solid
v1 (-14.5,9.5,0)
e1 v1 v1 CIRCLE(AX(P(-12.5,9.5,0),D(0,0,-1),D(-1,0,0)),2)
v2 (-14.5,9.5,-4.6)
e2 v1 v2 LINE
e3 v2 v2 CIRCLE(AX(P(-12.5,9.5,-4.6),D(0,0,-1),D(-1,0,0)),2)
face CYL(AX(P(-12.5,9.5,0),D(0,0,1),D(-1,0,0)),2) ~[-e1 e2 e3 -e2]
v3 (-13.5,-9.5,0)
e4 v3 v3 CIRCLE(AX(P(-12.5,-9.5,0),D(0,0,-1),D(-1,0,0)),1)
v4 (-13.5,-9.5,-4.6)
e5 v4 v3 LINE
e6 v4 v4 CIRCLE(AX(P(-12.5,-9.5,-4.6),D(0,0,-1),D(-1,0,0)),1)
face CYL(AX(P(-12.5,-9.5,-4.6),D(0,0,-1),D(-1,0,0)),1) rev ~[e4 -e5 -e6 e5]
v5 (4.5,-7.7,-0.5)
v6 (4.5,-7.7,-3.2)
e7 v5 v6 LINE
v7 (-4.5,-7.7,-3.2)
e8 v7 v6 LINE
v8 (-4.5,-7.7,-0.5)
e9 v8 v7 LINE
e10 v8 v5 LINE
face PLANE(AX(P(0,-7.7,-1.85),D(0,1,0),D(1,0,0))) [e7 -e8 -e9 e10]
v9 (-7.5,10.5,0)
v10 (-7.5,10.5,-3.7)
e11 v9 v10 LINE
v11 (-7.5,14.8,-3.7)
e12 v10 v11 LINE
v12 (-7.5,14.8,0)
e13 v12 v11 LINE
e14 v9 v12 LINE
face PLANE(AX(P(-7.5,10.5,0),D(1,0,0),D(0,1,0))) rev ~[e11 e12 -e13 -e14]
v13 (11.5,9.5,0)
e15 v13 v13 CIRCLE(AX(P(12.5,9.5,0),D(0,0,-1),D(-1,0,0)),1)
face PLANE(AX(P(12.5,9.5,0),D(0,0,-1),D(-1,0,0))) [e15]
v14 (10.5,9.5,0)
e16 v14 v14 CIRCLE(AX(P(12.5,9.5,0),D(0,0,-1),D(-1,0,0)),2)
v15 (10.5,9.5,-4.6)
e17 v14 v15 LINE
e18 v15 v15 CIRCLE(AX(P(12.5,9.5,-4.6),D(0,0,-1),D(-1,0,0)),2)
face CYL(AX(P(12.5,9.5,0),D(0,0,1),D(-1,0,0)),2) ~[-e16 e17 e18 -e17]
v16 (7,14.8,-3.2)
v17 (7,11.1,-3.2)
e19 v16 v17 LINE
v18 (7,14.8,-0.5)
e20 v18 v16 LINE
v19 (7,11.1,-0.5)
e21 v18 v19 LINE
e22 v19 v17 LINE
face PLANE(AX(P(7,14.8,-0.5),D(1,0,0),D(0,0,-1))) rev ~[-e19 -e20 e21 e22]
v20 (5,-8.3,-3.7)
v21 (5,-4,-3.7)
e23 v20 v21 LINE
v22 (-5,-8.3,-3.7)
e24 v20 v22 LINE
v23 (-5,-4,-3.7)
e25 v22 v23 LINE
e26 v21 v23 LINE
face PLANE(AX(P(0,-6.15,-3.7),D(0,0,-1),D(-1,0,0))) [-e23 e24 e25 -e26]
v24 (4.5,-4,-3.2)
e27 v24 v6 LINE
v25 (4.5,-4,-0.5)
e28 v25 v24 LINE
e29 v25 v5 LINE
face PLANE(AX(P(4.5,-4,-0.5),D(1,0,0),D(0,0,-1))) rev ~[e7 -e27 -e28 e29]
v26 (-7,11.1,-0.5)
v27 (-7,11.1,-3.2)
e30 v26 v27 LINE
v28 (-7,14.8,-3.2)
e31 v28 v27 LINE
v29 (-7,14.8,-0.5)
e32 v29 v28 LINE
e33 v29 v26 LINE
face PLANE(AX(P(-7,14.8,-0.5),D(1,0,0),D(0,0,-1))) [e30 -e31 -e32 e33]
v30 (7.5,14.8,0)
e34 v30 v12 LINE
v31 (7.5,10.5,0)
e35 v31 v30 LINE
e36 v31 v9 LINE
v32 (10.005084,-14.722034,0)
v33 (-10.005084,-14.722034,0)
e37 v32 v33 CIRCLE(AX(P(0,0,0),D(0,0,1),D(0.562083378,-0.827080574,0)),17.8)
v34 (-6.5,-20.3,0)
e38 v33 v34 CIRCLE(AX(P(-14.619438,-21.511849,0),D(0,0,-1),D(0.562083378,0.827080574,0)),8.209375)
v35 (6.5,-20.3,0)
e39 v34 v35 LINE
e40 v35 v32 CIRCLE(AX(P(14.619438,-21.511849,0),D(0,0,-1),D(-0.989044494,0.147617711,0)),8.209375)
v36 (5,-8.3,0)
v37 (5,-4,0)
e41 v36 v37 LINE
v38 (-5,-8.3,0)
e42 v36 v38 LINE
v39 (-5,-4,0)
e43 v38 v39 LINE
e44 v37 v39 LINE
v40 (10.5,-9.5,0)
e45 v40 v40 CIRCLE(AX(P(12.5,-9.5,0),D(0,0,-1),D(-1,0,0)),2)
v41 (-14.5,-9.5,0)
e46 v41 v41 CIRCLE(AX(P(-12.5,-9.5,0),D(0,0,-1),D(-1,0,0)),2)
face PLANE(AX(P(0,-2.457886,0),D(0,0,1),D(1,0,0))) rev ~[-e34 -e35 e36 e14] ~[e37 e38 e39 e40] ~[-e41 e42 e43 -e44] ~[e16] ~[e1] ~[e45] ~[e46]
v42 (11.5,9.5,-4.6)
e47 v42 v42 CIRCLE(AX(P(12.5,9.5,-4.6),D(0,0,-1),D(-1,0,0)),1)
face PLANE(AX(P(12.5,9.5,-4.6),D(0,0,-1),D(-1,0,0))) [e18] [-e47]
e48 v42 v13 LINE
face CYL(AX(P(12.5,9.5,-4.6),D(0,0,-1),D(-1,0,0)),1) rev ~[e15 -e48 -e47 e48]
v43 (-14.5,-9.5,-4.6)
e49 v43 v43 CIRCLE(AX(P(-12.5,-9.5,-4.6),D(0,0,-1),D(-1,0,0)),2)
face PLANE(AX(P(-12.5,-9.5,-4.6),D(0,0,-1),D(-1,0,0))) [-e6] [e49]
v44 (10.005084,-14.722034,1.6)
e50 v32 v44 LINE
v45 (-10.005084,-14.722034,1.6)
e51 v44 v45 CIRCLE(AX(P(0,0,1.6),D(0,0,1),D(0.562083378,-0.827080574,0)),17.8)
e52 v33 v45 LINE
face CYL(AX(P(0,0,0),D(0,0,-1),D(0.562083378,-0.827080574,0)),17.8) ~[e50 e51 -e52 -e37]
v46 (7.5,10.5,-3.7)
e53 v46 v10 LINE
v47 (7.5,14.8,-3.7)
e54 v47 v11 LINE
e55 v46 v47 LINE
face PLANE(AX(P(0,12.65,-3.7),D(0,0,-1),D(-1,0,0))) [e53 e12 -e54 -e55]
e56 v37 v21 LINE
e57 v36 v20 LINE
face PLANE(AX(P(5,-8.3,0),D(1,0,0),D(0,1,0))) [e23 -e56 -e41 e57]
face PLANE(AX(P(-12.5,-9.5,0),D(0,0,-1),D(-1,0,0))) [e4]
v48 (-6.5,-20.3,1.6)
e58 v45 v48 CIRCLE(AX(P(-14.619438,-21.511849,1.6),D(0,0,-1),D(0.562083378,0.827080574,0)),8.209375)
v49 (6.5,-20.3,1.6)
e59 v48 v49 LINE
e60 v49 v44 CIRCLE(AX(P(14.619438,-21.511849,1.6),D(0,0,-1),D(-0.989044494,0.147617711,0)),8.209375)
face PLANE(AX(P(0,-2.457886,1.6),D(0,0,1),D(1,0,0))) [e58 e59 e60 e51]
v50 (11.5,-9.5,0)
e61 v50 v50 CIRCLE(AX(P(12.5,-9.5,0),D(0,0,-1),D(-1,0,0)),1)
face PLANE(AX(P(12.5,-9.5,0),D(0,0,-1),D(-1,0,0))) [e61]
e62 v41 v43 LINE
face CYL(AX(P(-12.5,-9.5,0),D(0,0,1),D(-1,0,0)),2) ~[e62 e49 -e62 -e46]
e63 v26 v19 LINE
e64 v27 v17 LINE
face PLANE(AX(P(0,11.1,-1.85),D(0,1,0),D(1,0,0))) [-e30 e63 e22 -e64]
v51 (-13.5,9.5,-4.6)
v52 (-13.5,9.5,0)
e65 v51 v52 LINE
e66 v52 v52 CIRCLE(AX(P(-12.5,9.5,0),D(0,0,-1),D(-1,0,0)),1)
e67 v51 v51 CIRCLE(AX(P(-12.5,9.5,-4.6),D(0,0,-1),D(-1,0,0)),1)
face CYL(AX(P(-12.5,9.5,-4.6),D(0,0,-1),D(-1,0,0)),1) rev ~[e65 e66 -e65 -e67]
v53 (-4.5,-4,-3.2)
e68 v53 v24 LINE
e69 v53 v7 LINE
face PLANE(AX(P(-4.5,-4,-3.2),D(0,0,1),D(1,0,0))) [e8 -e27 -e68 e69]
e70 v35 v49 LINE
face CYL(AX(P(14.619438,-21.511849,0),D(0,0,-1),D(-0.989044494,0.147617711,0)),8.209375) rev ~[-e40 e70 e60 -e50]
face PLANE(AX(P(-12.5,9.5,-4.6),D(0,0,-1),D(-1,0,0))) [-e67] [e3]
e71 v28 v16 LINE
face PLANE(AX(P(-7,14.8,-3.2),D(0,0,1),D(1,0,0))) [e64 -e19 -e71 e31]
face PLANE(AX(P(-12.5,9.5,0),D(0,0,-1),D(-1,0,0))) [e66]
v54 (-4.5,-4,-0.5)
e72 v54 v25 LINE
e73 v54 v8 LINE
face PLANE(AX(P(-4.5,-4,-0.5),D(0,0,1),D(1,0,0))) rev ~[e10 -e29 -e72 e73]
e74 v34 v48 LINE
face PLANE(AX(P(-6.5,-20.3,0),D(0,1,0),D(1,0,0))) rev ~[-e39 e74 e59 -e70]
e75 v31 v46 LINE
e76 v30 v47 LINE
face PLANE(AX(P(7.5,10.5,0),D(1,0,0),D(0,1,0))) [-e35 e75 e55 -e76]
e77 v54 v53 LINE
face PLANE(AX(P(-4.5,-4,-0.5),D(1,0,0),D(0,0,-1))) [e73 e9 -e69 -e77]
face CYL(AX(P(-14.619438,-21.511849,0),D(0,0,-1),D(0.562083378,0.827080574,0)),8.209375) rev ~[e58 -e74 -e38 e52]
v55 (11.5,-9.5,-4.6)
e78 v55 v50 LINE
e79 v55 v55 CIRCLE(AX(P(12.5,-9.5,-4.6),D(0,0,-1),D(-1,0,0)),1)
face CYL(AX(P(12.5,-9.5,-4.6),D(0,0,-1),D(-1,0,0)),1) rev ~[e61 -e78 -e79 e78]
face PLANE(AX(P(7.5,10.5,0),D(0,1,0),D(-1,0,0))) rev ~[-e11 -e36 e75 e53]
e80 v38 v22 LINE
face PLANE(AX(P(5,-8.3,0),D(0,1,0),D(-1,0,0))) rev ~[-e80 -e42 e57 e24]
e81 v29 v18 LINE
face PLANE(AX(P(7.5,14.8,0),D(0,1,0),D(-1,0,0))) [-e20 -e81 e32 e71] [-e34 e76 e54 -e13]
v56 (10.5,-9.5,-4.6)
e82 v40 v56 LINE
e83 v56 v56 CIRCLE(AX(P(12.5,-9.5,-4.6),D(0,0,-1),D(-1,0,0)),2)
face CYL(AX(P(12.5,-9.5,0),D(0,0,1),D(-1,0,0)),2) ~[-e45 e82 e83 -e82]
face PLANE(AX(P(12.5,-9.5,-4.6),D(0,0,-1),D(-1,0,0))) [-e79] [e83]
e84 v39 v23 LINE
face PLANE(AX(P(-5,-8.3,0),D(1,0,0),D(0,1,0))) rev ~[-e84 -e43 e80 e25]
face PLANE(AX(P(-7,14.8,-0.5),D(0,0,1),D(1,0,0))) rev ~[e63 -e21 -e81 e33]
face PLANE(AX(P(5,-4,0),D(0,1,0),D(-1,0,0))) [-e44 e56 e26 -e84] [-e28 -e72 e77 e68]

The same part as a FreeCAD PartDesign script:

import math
import FreeCAD as App
import Part
import Sketcher
from FreeCAD import Vector
Q = App.Units.Quantity

doc = App.newDocument("Part")
body = doc.addObject("PartDesign::Body", "Body")

sketch1 = doc.addObject("Sketcher::SketchObject", "Sketch")
body.addObject(sketch1)
sketch1.AttachmentSupport = (doc.XY_Plane, [""])
sketch1.MapMode = "FlatFace"
sketch1.addGeometry(Part.LineSegment(Vector(-6, -20, 0), Vector(6, -20, 0)), False)
sketch1.addGeometry(Part.ArcOfCircle(Part.Circle(Vector(15, -22, 0), Vector(0, 0, 1), 8), math.radians(124), math.radians(172)), False)
sketch1.addGeometry(Part.ArcOfCircle(Part.Circle(Vector(0, 0, 0), Vector(0, 0, 1), 18), math.radians(-56), math.radians(236)), False)
sketch1.addGeometry(Part.ArcOfCircle(Part.Circle(Vector(-15, -22, 0), Vector(0, 0, 1), 8), math.radians(8), math.radians(56)), False)
sketch1.addConstraint(Sketcher.Constraint("Coincident", 0, 2, 1, 2))
sketch1.addConstraint(Sketcher.Constraint("Tangent", 1, 1, 2, 1))
sketch1.addConstraint(Sketcher.Constraint("Tangent", 2, 2, 3, 2))
sketch1.addConstraint(Sketcher.Constraint("Coincident", 3, 1, 0, 1))
sketch1.addConstraint(Sketcher.Constraint("Horizontal", 0))
sketch1.addConstraint(Sketcher.Constraint("Coincident", 2, 3, -1, 1))
sketch1.addConstraint(Sketcher.Constraint("Equal", 1, 3))
sketch1.addConstraint(Sketcher.Constraint("Horizontal", 1, 3, 3, 3))
sketch1.addConstraint(Sketcher.Constraint("Radius", 2, Q("17.8 mm")))
sketch1.addConstraint(Sketcher.Constraint("DistanceX", 0, 1, 0, 2, Q("13 mm")))
sketch1.addConstraint(Sketcher.Constraint("DistanceY", 0, 2, -1, 1, Q("20.3 mm")))
sketch1.addConstraint(Sketcher.Constraint("Radius", 1, Q("8.209375 mm")))
pad1 = doc.addObject("PartDesign::Pad", "Pad")
body.addObject(pad1)
pad1.Profile = sketch1
pad1.Length = 1.6

sketch2 = doc.addObject("Sketcher::SketchObject", "Sketch001")
body.addObject(sketch2)
sketch2.AttachmentSupport = (doc.XY_Plane, [""])
sketch2.MapMode = "FlatFace"
sketch2.addGeometry(Part.Circle(Vector(12.5, 9.5, 0), Vector(0, 0, 1), 2), False)
sketch2.addGeometry(Part.Circle(Vector(-12.5, 9.5, 0), Vector(0, 0, 1), 2), False)
sketch2.addGeometry(Part.Circle(Vector(-12.5, -9.5, 0), Vector(0, 0, 1), 2), False)
sketch2.addGeometry(Part.Circle(Vector(12.5, -9.5, 0), Vector(0, 0, 1), 2), False)
sketch2.addConstraint(Sketcher.Constraint("Equal", 0, 1))
sketch2.addConstraint(Sketcher.Constraint("Equal", 1, 2))
sketch2.addConstraint(Sketcher.Constraint("Equal", 2, 3))
sketch2.addConstraint(Sketcher.Constraint("Symmetric", 0, 3, 2, 3, -1, 1))
sketch2.addConstraint(Sketcher.Constraint("Symmetric", 1, 3, 3, 3, -1, 1))
sketch2.addConstraint(Sketcher.Constraint("Symmetric", 0, 3, 1, 3, -2))
sketch2.addConstraint(Sketcher.Constraint("Diameter", 0, Q("4 mm")))
sketch2.addConstraint(Sketcher.Constraint("DistanceX", 1, 3, 0, 3, Q("25 mm")))
sketch2.addConstraint(Sketcher.Constraint("DistanceY", 2, 3, 1, 3, Q("19 mm")))
pad2 = doc.addObject("PartDesign::Pad", "Pad001")
body.addObject(pad2)
pad2.Profile = sketch2
pad2.Length = 4.6
pad2.Reversed = True

sketch3 = doc.addObject("Sketcher::SketchObject", "Sketch002")
body.addObject(sketch3)
sketch3.AttachmentSupport = (doc.XY_Plane, [""])
sketch3.MapMode = "FlatFace"
sketch3.AttachmentOffset = App.Placement(Vector(0, 0, -4.6), App.Rotation())
sketch3.addGeometry(Part.Circle(Vector(12.5, 9.5, 0), Vector(0, 0, 1), 1), False)
sketch3.addGeometry(Part.Circle(Vector(-12.5, 9.5, 0), Vector(0, 0, 1), 1), False)
sketch3.addGeometry(Part.Circle(Vector(-12.5, -9.5, 0), Vector(0, 0, 1), 1), False)
sketch3.addGeometry(Part.Circle(Vector(12.5, -9.5, 0), Vector(0, 0, 1), 1), False)
sketch3.addConstraint(Sketcher.Constraint("Equal", 0, 1))
sketch3.addConstraint(Sketcher.Constraint("Equal", 1, 2))
sketch3.addConstraint(Sketcher.Constraint("Equal", 2, 3))
sketch3.addConstraint(Sketcher.Constraint("Symmetric", 0, 3, 2, 3, -1, 1))
sketch3.addConstraint(Sketcher.Constraint("Symmetric", 1, 3, 3, 3, -1, 1))
sketch3.addConstraint(Sketcher.Constraint("Symmetric", 0, 3, 1, 3, -2))
sketch3.addConstraint(Sketcher.Constraint("Diameter", 0, Q("2 mm")))
sketch3.addConstraint(Sketcher.Constraint("DistanceX", 1, 3, 0, 3, Q("25 mm")))
sketch3.addConstraint(Sketcher.Constraint("DistanceY", 2, 3, 1, 3, Q("19 mm")))
pocket1 = doc.addObject("PartDesign::Pocket", "Pocket")
body.addObject(pocket1)
pocket1.Profile = sketch3
pocket1.Length = 4.6
pocket1.Reversed = True

sketch4 = doc.addObject("Sketcher::SketchObject", "Sketch003")
body.addObject(sketch4)
sketch4.AttachmentSupport = (doc.XY_Plane, [""])
sketch4.MapMode = "FlatFace"
sketch4.addGeometry(Part.LineSegment(Vector(7.5, 14.8, 0), Vector(7.5, 10.5, 0)), False)
sketch4.addGeometry(Part.LineSegment(Vector(7.5, 10.5, 0), Vector(-7.5, 10.5, 0)), False)
sketch4.addGeometry(Part.LineSegment(Vector(-7.5, 10.5, 0), Vector(-7.5, 14.8, 0)), False)
sketch4.addGeometry(Part.LineSegment(Vector(-7.5, 14.8, 0), Vector(7.5, 14.8, 0)), False)
sketch4.addGeometry(Part.LineSegment(Vector(5, -4, 0), Vector(5, -8.3, 0)), False)
sketch4.addGeometry(Part.LineSegment(Vector(5, -8.3, 0), Vector(-5, -8.3, 0)), False)
sketch4.addGeometry(Part.LineSegment(Vector(-5, -8.3, 0), Vector(-5, -4, 0)), False)
sketch4.addGeometry(Part.LineSegment(Vector(-5, -4, 0), Vector(5, -4, 0)), False)
sketch4.addConstraint(Sketcher.Constraint("Coincident", 0, 2, 1, 1))
sketch4.addConstraint(Sketcher.Constraint("Coincident", 1, 2, 2, 1))
sketch4.addConstraint(Sketcher.Constraint("Coincident", 2, 2, 3, 1))
sketch4.addConstraint(Sketcher.Constraint("Coincident", 3, 2, 0, 1))
sketch4.addConstraint(Sketcher.Constraint("Coincident", 4, 2, 5, 1))
sketch4.addConstraint(Sketcher.Constraint("Coincident", 5, 2, 6, 1))
sketch4.addConstraint(Sketcher.Constraint("Coincident", 6, 2, 7, 1))
sketch4.addConstraint(Sketcher.Constraint("Coincident", 7, 2, 4, 1))
sketch4.addConstraint(Sketcher.Constraint("Vertical", 0))
sketch4.addConstraint(Sketcher.Constraint("Horizontal", 1))
sketch4.addConstraint(Sketcher.Constraint("Vertical", 2))
sketch4.addConstraint(Sketcher.Constraint("Horizontal", 3))
sketch4.addConstraint(Sketcher.Constraint("Vertical", 4))
sketch4.addConstraint(Sketcher.Constraint("Horizontal", 5))
sketch4.addConstraint(Sketcher.Constraint("Vertical", 6))
sketch4.addConstraint(Sketcher.Constraint("Horizontal", 7))
sketch4.addConstraint(Sketcher.Constraint("Equal", 2, 4))
sketch4.addConstraint(Sketcher.Constraint("DistanceX", 1, 2, 1, 1, Q("15 mm")))
sketch4.addConstraint(Sketcher.Constraint("DistanceX", 5, 2, 5, 1, Q("10 mm")))
sketch4.addConstraint(Sketcher.Constraint("DistanceY", 0, 2, 0, 1, Q("4.3 mm")))
sketch4.addConstraint(Sketcher.Constraint("DistanceX", -1, 1, 4, 2, Q("5 mm")))
sketch4.addConstraint(Sketcher.Constraint("DistanceY", 6, 2, -1, 1, Q("4 mm")))
sketch4.addConstraint(Sketcher.Constraint("DistanceX", -1, 1, 0, 2, Q("7.5 mm")))
sketch4.addConstraint(Sketcher.Constraint("DistanceY", -1, 1, 0, 2, Q("10.5 mm")))
pad3 = doc.addObject("PartDesign::Pad", "Pad002")
body.addObject(pad3)
pad3.Profile = sketch4
pad3.Length = 3.7
pad3.Reversed = True

sketch5 = doc.addObject("Sketcher::SketchObject", "Sketch004")
body.addObject(sketch5)
sketch5.AttachmentSupport = (doc.XZ_Plane, [""])
sketch5.MapMode = "FlatFace"
sketch5.AttachmentOffset = App.Placement(Vector(0, 0, -14.8), App.Rotation())
sketch5.addGeometry(Part.LineSegment(Vector(-7, -3.2, 0), Vector(-7, -0.5, 0)), False)
sketch5.addGeometry(Part.LineSegment(Vector(-7, -0.5, 0), Vector(7, -0.5, 0)), False)
sketch5.addGeometry(Part.LineSegment(Vector(7, -0.5, 0), Vector(7, -3.2, 0)), False)
sketch5.addGeometry(Part.LineSegment(Vector(7, -3.2, 0), Vector(-7, -3.2, 0)), False)
sketch5.addConstraint(Sketcher.Constraint("Coincident", 0, 2, 1, 1))
sketch5.addConstraint(Sketcher.Constraint("Coincident", 1, 2, 2, 1))
sketch5.addConstraint(Sketcher.Constraint("Coincident", 2, 2, 3, 1))
sketch5.addConstraint(Sketcher.Constraint("Coincident", 3, 2, 0, 1))
sketch5.addConstraint(Sketcher.Constraint("Vertical", 0))
sketch5.addConstraint(Sketcher.Constraint("Horizontal", 1))
sketch5.addConstraint(Sketcher.Constraint("Vertical", 2))
sketch5.addConstraint(Sketcher.Constraint("Horizontal", 3))
sketch5.addConstraint(Sketcher.Constraint("DistanceX", 1, 1, 1, 2, Q("14 mm")))
sketch5.addConstraint(Sketcher.Constraint("DistanceY", 0, 1, 0, 2, Q("2.7 mm")))
sketch5.addConstraint(Sketcher.Constraint("DistanceX", 0, 2, -1, 1, Q("7 mm")))
sketch5.addConstraint(Sketcher.Constraint("DistanceY", 0, 2, -1, 1, Q("0.5 mm")))
pocket2 = doc.addObject("PartDesign::Pocket", "Pocket001")
body.addObject(pocket2)
pocket2.Profile = sketch5
pocket2.Length = 3.7
pocket2.Reversed = True

sketch6 = doc.addObject("Sketcher::SketchObject", "Sketch005")
body.addObject(sketch6)
sketch6.AttachmentSupport = (doc.XZ_Plane, [""])
sketch6.MapMode = "FlatFace"
sketch6.AttachmentOffset = App.Placement(Vector(0, 0, 4), App.Rotation())
sketch6.addGeometry(Part.LineSegment(Vector(-4.5, -3.2, 0), Vector(-4.5, -0.5, 0)), False)
sketch6.addGeometry(Part.LineSegment(Vector(-4.5, -0.5, 0), Vector(4.5, -0.5, 0)), False)
sketch6.addGeometry(Part.LineSegment(Vector(4.5, -0.5, 0), Vector(4.5, -3.2, 0)), False)
sketch6.addGeometry(Part.LineSegment(Vector(4.5, -3.2, 0), Vector(-4.5, -3.2, 0)), False)
sketch6.addConstraint(Sketcher.Constraint("Coincident", 0, 2, 1, 1))
sketch6.addConstraint(Sketcher.Constraint("Coincident", 1, 2, 2, 1))
sketch6.addConstraint(Sketcher.Constraint("Coincident", 2, 2, 3, 1))
sketch6.addConstraint(Sketcher.Constraint("Coincident", 3, 2, 0, 1))
sketch6.addConstraint(Sketcher.Constraint("Vertical", 0))
sketch6.addConstraint(Sketcher.Constraint("Horizontal", 1))
sketch6.addConstraint(Sketcher.Constraint("Vertical", 2))
sketch6.addConstraint(Sketcher.Constraint("Horizontal", 3))
sketch6.addConstraint(Sketcher.Constraint("DistanceX", 1, 1, 1, 2, Q("9 mm")))
sketch6.addConstraint(Sketcher.Constraint("DistanceY", 0, 1, 0, 2, Q("2.7 mm")))
sketch6.addConstraint(Sketcher.Constraint("DistanceX", 0, 2, -1, 1, Q("4.5 mm")))
sketch6.addConstraint(Sketcher.Constraint("DistanceY", 0, 2, -1, 1, Q("0.5 mm")))
pocket3 = doc.addObject("PartDesign::Pocket", "Pocket002")
body.addObject(pocket3)
pocket3.Profile = sketch6
pocket3.Length = 3.7
pocket3.Reversed = True

doc.recompute()
